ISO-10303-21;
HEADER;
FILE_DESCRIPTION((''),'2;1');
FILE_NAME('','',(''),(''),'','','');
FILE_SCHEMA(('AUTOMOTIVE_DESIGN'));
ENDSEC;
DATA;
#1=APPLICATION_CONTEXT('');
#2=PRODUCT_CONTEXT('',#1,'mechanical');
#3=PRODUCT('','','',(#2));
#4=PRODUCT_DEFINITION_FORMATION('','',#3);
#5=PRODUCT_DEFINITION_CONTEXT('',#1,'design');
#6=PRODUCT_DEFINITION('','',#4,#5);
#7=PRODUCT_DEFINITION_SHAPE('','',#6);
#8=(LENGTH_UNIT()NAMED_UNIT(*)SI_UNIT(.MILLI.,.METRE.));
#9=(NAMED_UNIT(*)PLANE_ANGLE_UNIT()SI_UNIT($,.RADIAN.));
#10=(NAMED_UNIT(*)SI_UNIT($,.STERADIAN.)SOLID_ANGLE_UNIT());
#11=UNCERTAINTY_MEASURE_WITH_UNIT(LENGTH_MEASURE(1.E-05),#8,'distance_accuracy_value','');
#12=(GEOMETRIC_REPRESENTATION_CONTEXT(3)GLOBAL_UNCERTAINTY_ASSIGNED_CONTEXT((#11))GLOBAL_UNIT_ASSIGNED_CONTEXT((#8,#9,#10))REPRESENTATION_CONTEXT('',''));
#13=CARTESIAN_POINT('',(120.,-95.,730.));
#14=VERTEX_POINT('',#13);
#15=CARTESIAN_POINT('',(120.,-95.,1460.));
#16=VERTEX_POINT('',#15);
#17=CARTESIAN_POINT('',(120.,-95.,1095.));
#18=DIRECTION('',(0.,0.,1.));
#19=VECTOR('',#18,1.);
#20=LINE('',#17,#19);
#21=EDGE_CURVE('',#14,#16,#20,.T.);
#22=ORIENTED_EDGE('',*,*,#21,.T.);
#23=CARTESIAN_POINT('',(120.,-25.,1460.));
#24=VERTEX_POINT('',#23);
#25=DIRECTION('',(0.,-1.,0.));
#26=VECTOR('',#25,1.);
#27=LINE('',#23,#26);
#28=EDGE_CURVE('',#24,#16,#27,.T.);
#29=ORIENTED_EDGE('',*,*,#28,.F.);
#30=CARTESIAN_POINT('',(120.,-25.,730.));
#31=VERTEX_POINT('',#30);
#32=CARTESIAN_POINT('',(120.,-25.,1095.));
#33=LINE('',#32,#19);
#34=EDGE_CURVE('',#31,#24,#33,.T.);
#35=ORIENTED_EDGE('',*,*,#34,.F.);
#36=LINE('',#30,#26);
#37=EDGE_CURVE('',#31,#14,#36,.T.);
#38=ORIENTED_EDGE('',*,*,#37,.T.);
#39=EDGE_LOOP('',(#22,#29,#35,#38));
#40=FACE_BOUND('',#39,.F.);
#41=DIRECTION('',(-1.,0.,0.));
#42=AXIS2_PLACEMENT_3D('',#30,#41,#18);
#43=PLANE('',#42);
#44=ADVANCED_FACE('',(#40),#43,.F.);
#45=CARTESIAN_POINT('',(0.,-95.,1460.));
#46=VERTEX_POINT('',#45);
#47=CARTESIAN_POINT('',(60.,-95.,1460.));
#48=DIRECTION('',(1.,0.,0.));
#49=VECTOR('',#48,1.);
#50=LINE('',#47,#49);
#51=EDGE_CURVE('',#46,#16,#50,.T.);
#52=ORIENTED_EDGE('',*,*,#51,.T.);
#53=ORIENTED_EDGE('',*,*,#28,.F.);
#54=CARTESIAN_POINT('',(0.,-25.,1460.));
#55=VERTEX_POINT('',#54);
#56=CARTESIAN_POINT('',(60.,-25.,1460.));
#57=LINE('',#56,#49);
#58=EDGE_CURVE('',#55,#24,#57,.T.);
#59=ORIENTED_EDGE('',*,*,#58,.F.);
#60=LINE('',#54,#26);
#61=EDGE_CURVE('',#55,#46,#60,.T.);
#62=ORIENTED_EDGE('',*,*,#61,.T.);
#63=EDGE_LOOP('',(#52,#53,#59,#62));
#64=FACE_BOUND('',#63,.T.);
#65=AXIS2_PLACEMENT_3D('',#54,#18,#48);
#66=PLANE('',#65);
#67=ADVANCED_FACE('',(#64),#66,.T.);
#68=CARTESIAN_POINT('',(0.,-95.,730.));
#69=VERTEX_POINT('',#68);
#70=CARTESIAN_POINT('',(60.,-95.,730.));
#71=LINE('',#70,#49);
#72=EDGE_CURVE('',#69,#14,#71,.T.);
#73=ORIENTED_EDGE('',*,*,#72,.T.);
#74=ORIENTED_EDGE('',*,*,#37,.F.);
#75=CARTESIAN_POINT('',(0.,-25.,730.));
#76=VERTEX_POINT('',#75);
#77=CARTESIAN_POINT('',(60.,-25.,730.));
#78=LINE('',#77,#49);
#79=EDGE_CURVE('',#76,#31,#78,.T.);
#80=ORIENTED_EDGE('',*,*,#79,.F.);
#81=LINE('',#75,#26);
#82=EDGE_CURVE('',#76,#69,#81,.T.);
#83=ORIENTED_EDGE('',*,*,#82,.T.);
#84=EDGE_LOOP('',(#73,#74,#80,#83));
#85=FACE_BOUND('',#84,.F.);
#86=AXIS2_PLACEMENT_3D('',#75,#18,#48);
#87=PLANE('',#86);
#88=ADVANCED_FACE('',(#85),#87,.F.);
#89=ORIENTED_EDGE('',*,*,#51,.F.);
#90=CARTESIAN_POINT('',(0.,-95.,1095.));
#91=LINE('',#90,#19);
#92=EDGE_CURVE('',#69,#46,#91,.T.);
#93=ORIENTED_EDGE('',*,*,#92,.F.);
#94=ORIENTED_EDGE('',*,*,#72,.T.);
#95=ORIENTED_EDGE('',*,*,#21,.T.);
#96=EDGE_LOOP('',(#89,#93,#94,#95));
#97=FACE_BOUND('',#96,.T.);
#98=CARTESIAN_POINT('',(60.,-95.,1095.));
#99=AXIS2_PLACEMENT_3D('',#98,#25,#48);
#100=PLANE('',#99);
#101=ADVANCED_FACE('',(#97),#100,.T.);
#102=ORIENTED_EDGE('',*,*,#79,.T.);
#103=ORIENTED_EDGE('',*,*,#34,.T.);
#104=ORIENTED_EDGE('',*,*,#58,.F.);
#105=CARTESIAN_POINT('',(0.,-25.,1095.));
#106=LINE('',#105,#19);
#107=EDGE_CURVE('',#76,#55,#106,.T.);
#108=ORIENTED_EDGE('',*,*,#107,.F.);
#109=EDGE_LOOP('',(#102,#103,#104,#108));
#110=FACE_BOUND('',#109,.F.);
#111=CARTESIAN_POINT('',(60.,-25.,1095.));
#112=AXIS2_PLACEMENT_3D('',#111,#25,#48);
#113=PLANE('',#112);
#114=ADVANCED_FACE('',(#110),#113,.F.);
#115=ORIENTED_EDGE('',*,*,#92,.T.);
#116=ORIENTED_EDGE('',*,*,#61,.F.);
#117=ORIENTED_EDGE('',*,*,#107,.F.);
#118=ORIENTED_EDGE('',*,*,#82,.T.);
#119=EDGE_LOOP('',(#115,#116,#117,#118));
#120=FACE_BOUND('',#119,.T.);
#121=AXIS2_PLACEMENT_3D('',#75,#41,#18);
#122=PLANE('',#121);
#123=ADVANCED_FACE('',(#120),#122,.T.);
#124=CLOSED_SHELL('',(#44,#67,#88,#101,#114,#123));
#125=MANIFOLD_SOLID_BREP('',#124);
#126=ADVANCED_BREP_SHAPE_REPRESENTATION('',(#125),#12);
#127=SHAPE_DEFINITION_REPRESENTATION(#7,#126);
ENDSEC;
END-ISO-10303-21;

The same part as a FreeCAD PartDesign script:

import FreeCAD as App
import Part
import Sketcher

V = App.Vector
Q = App.Units.Quantity

doc = App.newDocument("Part")
body = doc.addObject("PartDesign::Body", "Body")

sketch1 = doc.addObject("Sketcher::SketchObject", "Sketch")
body.addObject(sketch1)
sketch1.AttachmentSupport = (doc.XZ_Plane, [""])
sketch1.MapMode = "FlatFace"
sketch1.addGeometry([
    Part.LineSegment(V(0, 730, 0), V(0, 0, 0)),
    Part.LineSegment(V(0, 0, 0), V(120, 0, 0)),
    Part.LineSegment(V(120, 0, 0), V(120, 730, 0)),
    Part.LineSegment(V(120, 730, 0), V(0, 730, 0)),
], False)
sketch1.addConstraint([
    Sketcher.Constraint("Coincident", 0, 2, 1, 1),
    Sketcher.Constraint("Coincident", 1, 2, 2, 1),
    Sketcher.Constraint("Coincident", 2, 2, 3, 1),
    Sketcher.Constraint("Coincident", 3, 2, 0, 1),
    Sketcher.Constraint("Vertical", 0),
    Sketcher.Constraint("Horizontal", 1),
    Sketcher.Constraint("Vertical", 2),
    Sketcher.Constraint("Horizontal", 3),
    Sketcher.Constraint("Coincident", 0, 2, -1, 1),
    Sketcher.Constraint("DistanceX", 1, 1, 1, 2, Q("120 mm")),
    Sketcher.Constraint("DistanceY", 0, 2, 0, 1, Q("730 mm")),
])
pad1 = doc.addObject("PartDesign::Pad", "Pad")
body.addObject(pad1)
pad1.Profile = sketch1
pad1.Length = 70
body2 = doc.addObject("PartDesign::Body", "Body001")
doc.recompute()

body.Placement = App.Placement(V(0, 0, 730), App.Rotation(V(0, 0, 1), 0))
boolean = doc.addObject("PartDesign::Boolean", "Boolean")
body2.addObject(boolean)
boolean.Type = "Fuse"
boolean.addObjects([body])
body3 = doc.addObject("PartDesign::Body", "Body002")
doc.recompute()

body2.Placement = App.Placement(V(0, -25, 0), App.Rotation(V(0, 0, 1), 0))
boolean2 = doc.addObject("PartDesign::Boolean", "Boolean001")
body3.addObject(boolean2)
boolean2.Type = "Fuse"
boolean2.addObjects([body2])

doc.recompute()
